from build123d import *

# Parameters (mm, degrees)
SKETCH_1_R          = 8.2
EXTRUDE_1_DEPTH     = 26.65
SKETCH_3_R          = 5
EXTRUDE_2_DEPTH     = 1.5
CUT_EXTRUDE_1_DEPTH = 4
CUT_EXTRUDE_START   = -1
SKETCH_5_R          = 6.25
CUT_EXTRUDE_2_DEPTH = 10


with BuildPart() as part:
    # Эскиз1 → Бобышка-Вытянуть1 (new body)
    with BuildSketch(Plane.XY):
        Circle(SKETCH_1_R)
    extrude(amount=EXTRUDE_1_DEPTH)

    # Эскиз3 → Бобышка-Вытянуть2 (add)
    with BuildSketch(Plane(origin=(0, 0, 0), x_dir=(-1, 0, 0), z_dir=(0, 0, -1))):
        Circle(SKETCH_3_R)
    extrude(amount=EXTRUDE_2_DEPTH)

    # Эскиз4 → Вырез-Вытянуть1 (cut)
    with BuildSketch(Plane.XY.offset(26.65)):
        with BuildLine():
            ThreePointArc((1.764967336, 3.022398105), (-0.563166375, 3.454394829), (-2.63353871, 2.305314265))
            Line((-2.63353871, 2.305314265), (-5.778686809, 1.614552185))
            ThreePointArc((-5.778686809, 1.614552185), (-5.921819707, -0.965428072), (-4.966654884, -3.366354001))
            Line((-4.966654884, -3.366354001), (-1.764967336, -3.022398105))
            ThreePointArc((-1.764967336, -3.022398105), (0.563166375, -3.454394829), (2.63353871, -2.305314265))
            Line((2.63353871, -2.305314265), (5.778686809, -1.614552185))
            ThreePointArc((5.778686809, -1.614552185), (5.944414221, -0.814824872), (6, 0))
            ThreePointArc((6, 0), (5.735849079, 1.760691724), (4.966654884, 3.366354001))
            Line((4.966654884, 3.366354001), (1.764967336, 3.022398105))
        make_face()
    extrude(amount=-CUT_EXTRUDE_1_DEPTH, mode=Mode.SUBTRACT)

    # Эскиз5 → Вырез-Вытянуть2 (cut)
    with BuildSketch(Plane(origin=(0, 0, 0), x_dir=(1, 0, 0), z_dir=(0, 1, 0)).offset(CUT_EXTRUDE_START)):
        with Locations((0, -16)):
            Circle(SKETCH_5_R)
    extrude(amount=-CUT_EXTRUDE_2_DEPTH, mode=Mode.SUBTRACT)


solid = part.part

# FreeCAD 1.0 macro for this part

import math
import FreeCAD as App
import Part
import Sketcher

doc = App.newDocument("Part")
body = doc.addObject("PartDesign::Body", "Body")

# Sketch on XY plane
sketch1 = body.newObject("Sketcher::SketchObject", "Sketch")
sketch1.AttachmentSupport = (doc.getObject("XY_Plane"), [""])
sketch1.MapMode = "FlatFace"
sketch1.addGeometry(Part.Circle(App.Vector(0, 0, 0), App.Vector(0, 0, 1), 8), False)
sketch1.addConstraint(Sketcher.Constraint("Coincident", 0, 3, -1, 1))
sketch1.addConstraint(Sketcher.Constraint("Diameter", 0, 16.4))
pad1 = body.newObject("PartDesign::Pad", "Pad")
pad1.Profile = sketch1
pad1.Length = 26.65

# Sketch on XY plane
sketch2 = body.newObject("Sketcher::SketchObject", "Sketch001")
sketch2.AttachmentSupport = (doc.getObject("XY_Plane"), [""])
sketch2.MapMode = "FlatFace"
sketch2.addGeometry(Part.Circle(App.Vector(0, 0, 0), App.Vector(0, 0, 1), 5), False)
sketch2.addConstraint(Sketcher.Constraint("Coincident", 0, 3, -1, 1))
sketch2.addConstraint(Sketcher.Constraint("Diameter", 0, 10.0))
pad2 = body.newObject("PartDesign::Pad", "Pad001")
pad2.Profile = sketch2
pad2.Length = 1.5
pad2.Reversed = True

# Sketch on XY plane
sketch3 = body.newObject("Sketcher::SketchObject", "Sketch002")
sketch3.AttachmentSupport = (doc.getObject("XY_Plane"), [""])
sketch3.MapMode = "FlatFace"
sketch3.AttachmentOffset = App.Placement(App.Vector(0, 0, 26.65), App.Rotation())
sketch3.addGeometry(Part.ArcOfCircle(Part.Circle(App.Vector(0, 0, 0), App.Vector(0, 0, 1), 3.5), math.radians(60), math.radians(139)), False)
sketch3.addGeometry(Part.LineSegment(App.Vector(-2.6, 2.3, 0), App.Vector(-5.8, 1.6, 0)), False)
sketch3.addGeometry(Part.ArcOfCircle(Part.Circle(App.Vector(0, 0, 0), App.Vector(0, 0, 1), 6), math.radians(164), math.radians(214)), False)
sketch3.addGeometry(Part.LineSegment(App.Vector(-5, -3.4, 0), App.Vector(-1.8, -3, 0)), False)
sketch3.addGeometry(Part.ArcOfCircle(Part.Circle(App.Vector(0, 0, 0), App.Vector(0, 0, 1), 3.5), math.radians(-120), math.radians(-41)), False)
sketch3.addGeometry(Part.LineSegment(App.Vector(2.6, -2.3, 0), App.Vector(5.8, -1.6, 0)), False)
sketch3.addGeometry(Part.ArcOfCircle(Part.Circle(App.Vector(0, 0, 0), App.Vector(0, 0, 1), 6), math.radians(-15.61), math.radians(0)), False)
sketch3.addGeometry(Part.ArcOfCircle(Part.Circle(App.Vector(0, 0, 0), App.Vector(0, 0, 1), 6), math.radians(0), math.radians(34)), False)
sketch3.addGeometry(Part.LineSegment(App.Vector(5, 3.4, 0), App.Vector(1.8, 3, 0)), False)
sketch3.addConstraint(Sketcher.Constraint("Coincident", 0, 2, 1, 1))
sketch3.addConstraint(Sketcher.Constraint("Coincident", 1, 2, 2, 1))
sketch3.addConstraint(Sketcher.Constraint("Coincident", 2, 2, 3, 1))
sketch3.addConstraint(Sketcher.Constraint("Coincident", 3, 2, 4, 1))
sketch3.addConstraint(Sketcher.Constraint("Coincident", 4, 2, 5, 1))
sketch3.addConstraint(Sketcher.Constraint("Coincident", 5, 2, 6, 1))
sketch3.addConstraint(Sketcher.Constraint("Tangent", 6, 2, 7, 1))
sketch3.addConstraint(Sketcher.Constraint("Coincident", 7, 2, 8, 1))
sketch3.addConstraint(Sketcher.Constraint("Coincident", 8, 2, 0, 1))
sketch3.addConstraint(Sketcher.Constraint("Coincident", 0, 3, -1, 1))
sketch3.addConstraint(Sketcher.Constraint("Coincident", 2, 3, -1, 1))
sketch3.addConstraint(Sketcher.Constraint("Coincident", 4, 3, -1, 1))
sketch3.addConstraint(Sketcher.Constraint("Coincident", 6, 3, -1, 1))
sketch3.addConstraint(Sketcher.Constraint("Equal", 0, 4))
sketch3.addConstraint(Sketcher.Constraint("Equal", 2, 6))
sketch3.addConstraint(Sketcher.Constraint("Equal", 6, 7))
sketch3.addConstraint(Sketcher.Constraint("PointOnObject", 6, 2, -1))
sketch3.addConstraint(Sketcher.Constraint("Parallel", 1, 5))
sketch3.addConstraint(Sketcher.Constraint("Parallel", 3, 8))
sketch3.addConstraint(Sketcher.Constraint("Equal", 1, 3))
sketch3.addConstraint(Sketcher.Constraint("Equal", 3, 5))
sketch3.addConstraint(Sketcher.Constraint("Equal", 5, 8))
sketch3.addConstraint(Sketcher.Constraint("Radius", 2, 6.0))
sketch3.addConstraint(Sketcher.Constraint("Radius", 0, 3.5))
sketch3.addConstraint(Sketcher.Constraint("DistanceY", 3, 2, -1, 1, 3.022398))
sketch3.addConstraint(Sketcher.Constraint("Distance", 1, 3.22011))
sketch3.addConstraint(Sketcher.Constraint("DistanceX", 0, 2, -1, 1, 2.633539))
pocket1 = body.newObject("PartDesign::Pocket", "Pocket")
pocket1.Profile = sketch3
pocket1.Length = 4

# Sketch on XZ plane
sketch4 = body.newObject("Sketcher::SketchObject", "Sketch003")
sketch4.AttachmentSupport = (doc.getObject("XZ_Plane"), [""])
sketch4.MapMode = "FlatFace"
sketch4.AttachmentOffset = App.Placement(App.Vector(0, 0, 1), App.Rotation())
sketch4.addGeometry(Part.Circle(App.Vector(0, 16, 0), App.Vector(0, 0, 1), 6), False)
sketch4.addConstraint(Sketcher.Constraint("PointOnObject", 0, 3, -2))
sketch4.addConstraint(Sketcher.Constraint("Diameter", 0, 12.5))
sketch4.addConstraint(Sketcher.Constraint("DistanceY", -1, 1, 0, 3, 16.0))
pocket2 = body.newObject("PartDesign::Pocket", "Pocket001")
pocket2.Profile = sketch4
pocket2.Length = 10
pocket2.Reversed = True

doc.recompute()
